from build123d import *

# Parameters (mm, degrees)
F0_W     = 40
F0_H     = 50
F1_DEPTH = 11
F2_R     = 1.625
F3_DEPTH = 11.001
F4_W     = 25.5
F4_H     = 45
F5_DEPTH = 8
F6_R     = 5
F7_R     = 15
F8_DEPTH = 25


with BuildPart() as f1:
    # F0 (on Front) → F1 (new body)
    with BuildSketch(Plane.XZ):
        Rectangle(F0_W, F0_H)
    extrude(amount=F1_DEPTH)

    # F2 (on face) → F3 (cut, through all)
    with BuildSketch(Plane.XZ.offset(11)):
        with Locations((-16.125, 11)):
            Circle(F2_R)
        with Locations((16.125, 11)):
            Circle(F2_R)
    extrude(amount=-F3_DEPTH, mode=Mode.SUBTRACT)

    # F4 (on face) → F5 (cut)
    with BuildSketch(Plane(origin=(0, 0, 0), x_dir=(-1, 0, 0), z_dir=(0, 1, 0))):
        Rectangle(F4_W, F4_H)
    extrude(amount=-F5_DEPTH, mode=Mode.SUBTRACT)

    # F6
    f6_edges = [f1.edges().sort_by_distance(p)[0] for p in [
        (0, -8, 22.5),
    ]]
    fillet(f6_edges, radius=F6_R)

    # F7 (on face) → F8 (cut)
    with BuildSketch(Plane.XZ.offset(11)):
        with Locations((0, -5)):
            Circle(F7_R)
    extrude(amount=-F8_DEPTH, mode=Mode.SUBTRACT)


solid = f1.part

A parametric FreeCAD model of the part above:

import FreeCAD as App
import Part
import Sketcher

V = App.Vector
Q = App.Units.Quantity


def edges_at(feature, points):
    """Names of the edges that pass closest to the given points."""
    edges = feature.Shape.Edges
    near = lambda p: min(range(len(edges)), key=lambda i: edges[i].distToShape(Part.Vertex(*p))[0])
    return sorted({f"Edge{near(p) + 1}" for p in points})


def add_polygon(sketch, points):
    """Adds a closed chain of lines whose ends are joined by coincident constraints."""
    first, n = sketch.GeometryCount, len(points)
    for a, b in zip(points, points[1:] + points[:1]):
        sketch.addGeometry(Part.LineSegment(App.Vector(*a, 0), App.Vector(*b, 0)), False)
    for i in range(n):
        sketch.addConstraint(Sketcher.Constraint("Coincident", first + i, 2, first + (i + 1) % n, 1))

doc = App.newDocument("Part")
body = doc.addObject("PartDesign::Body", "Body")

# Sketch on XZ plane
sketch1 = doc.addObject("Sketcher::SketchObject", "Sketch")
body.addObject(sketch1)
sketch1.AttachmentSupport = (doc.XZ_Plane, [""])
sketch1.MapMode = "FlatFace"
add_polygon(sketch1, [(-20, 25), (-20, -25), (20, -25), (20, 25)])  # lines 0-3
sketch1.addConstraint(Sketcher.Constraint("Vertical", 0))
sketch1.addConstraint(Sketcher.Constraint("Horizontal", 1))
sketch1.addConstraint(Sketcher.Constraint("Vertical", 2))
sketch1.addConstraint(Sketcher.Constraint("Horizontal", 3))
sketch1.addConstraint(Sketcher.Constraint("Symmetric", 0, 2, 2, 2, -1, 1))
sketch1.addConstraint(Sketcher.Constraint("DistanceX", 1, 1, 1, 2, Q("40 mm")))
sketch1.addConstraint(Sketcher.Constraint("DistanceY", 0, 2, 0, 1, Q("50 mm")))
pad1 = doc.addObject("PartDesign::Pad", "Pad")
body.addObject(pad1)
pad1.Profile = sketch1
pad1.Length = 11

# Sketch on XZ plane
sketch2 = doc.addObject("Sketcher::SketchObject", "Sketch001")
body.addObject(sketch2)
sketch2.AttachmentSupport = (doc.XZ_Plane, [""])
sketch2.MapMode = "FlatFace"
sketch2.AttachmentOffset = App.Placement(V(0, 0, 11), App.Rotation())
sketch2.addGeometry(Part.Circle(V(-16.1, 11, 0), V(0, 0, 1), 1.6), False)
sketch2.addGeometry(Part.Circle(V(16.1, 11, 0), V(0, 0, 1), 1.6), False)
sketch2.addConstraint(Sketcher.Constraint("Equal", 0, 1))
sketch2.addConstraint(Sketcher.Constraint("Symmetric", 0, 3, 1, 3, -2))
sketch2.addConstraint(Sketcher.Constraint("Diameter", 0, Q("3.25 mm")))
sketch2.addConstraint(Sketcher.Constraint("DistanceY", -1, 1, 0, 3, Q("11 mm")))
sketch2.addConstraint(Sketcher.Constraint("DistanceX", 0, 3, 1, 3, Q("32.25 mm")))
pocket1 = doc.addObject("PartDesign::Pocket", "Pocket")
body.addObject(pocket1)
pocket1.Profile = sketch2
pocket1.Type = "ThroughAll"

# Sketch on XZ plane
sketch3 = doc.addObject("Sketcher::SketchObject", "Sketch002")
body.addObject(sketch3)
sketch3.AttachmentSupport = (doc.XZ_Plane, [""])
sketch3.MapMode = "FlatFace"
add_polygon(sketch3, [(13, 22), (13, -22), (-13, -22), (-13, 22)])  # lines 0-3
sketch3.addConstraint(Sketcher.Constraint("Vertical", 0))
sketch3.addConstraint(Sketcher.Constraint("Horizontal", 1))
sketch3.addConstraint(Sketcher.Constraint("Vertical", 2))
sketch3.addConstraint(Sketcher.Constraint("Horizontal", 3))
sketch3.addConstraint(Sketcher.Constraint("Symmetric", 0, 2, 2, 2, -1, 1))
sketch3.addConstraint(Sketcher.Constraint("DistanceY", 0, 2, 0, 1, Q("45 mm")))
sketch3.addConstraint(Sketcher.Constraint("DistanceX", 1, 2, 1, 1, Q("25.5 mm")))
pocket2 = doc.addObject("PartDesign::Pocket", "Pocket001")
body.addObject(pocket2)
pocket2.Profile = sketch3
pocket2.Length = 8
pocket2.Reversed = True
doc.recompute()

fillet = doc.addObject("PartDesign::Fillet", "Fillet")
body.addObject(fillet)
fillet.Base = (pocket2, edges_at(pocket2, [(0, -8, 22.5)]))
fillet.Radius = 5

# Sketch on XZ plane
sketch4 = doc.addObject("Sketcher::SketchObject", "Sketch003")
body.addObject(sketch4)
sketch4.AttachmentSupport = (doc.XZ_Plane, [""])
sketch4.MapMode = "FlatFace"
sketch4.AttachmentOffset = App.Placement(V(0, 0, 11), App.Rotation())
sketch4.addGeometry(Part.Circle(V(0, -5, 0), V(0, 0, 1), 15), False)
sketch4.addConstraint(Sketcher.Constraint("PointOnObject", 0, 3, -2))
sketch4.addConstraint(Sketcher.Constraint("Diameter", 0, Q("30 mm")))
sketch4.addConstraint(Sketcher.Constraint("DistanceY", 0, 3, -1, 1, Q("5 mm")))
pocket3 = doc.addObject("PartDesign::Pocket", "Pocket002")
body.addObject(pocket3)
pocket3.Profile = sketch4
pocket3.Length = 25

doc.recompute()
